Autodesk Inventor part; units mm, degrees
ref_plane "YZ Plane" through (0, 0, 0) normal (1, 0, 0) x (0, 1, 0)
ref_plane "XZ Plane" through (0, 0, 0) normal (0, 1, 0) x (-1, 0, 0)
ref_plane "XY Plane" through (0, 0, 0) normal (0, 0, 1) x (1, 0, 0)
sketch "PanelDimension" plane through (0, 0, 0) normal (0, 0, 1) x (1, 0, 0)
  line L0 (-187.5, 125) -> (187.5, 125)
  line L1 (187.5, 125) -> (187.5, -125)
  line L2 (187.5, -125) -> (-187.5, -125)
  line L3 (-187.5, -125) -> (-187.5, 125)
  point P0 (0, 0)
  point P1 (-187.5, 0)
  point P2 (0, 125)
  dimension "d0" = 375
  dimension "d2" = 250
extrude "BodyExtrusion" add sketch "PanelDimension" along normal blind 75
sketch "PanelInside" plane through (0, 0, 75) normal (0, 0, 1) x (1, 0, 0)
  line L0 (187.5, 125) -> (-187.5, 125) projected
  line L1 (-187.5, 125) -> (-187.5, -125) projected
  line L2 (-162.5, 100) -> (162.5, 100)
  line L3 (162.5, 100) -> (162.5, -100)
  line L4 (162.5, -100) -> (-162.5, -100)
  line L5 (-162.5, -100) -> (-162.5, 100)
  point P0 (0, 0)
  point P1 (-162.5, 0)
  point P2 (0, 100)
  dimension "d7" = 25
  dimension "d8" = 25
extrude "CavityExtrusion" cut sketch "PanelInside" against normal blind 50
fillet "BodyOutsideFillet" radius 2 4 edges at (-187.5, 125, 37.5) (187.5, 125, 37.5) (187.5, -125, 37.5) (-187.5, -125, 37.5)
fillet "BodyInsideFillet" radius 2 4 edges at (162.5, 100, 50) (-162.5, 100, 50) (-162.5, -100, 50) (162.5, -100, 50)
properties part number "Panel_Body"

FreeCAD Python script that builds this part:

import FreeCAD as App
import Part
import Sketcher
from FreeCAD import Vector
Q = App.Units.Quantity


def edges_at(feature, points):
    """Names of the edges that pass closest to the given points."""
    edges = feature.Shape.Edges
    near = lambda p: min(range(len(edges)), key=lambda i: edges[i].distToShape(Part.Vertex(*p))[0])
    return sorted({f"Edge{near(p) + 1}" for p in points})

doc = App.newDocument("Part")
body = doc.addObject("PartDesign::Body", "Body")

sketch1 = doc.addObject("Sketcher::SketchObject", "Sketch")
body.addObject(sketch1)
sketch1.AttachmentSupport = (doc.XY_Plane, [""])
sketch1.MapMode = "FlatFace"
sketch1.addGeometry([
    Part.LineSegment(Vector(187.5, 125, 0), Vector(-187.5, 125, 0)),
    Part.LineSegment(Vector(-187.5, 125, 0), Vector(-187.5, -125, 0)),
    Part.LineSegment(Vector(-187.5, -125, 0), Vector(187.5, -125, 0)),
    Part.LineSegment(Vector(187.5, -125, 0), Vector(187.5, 125, 0)),
], False)
sketch1.addConstraint([
    Sketcher.Constraint("Coincident", 0, 2, 1, 1),
    Sketcher.Constraint("Coincident", 1, 2, 2, 1),
    Sketcher.Constraint("Coincident", 2, 2, 3, 1),
    Sketcher.Constraint("Coincident", 3, 2, 0, 1),
    Sketcher.Constraint("Horizontal", 0),
    Sketcher.Constraint("Vertical", 1),
    Sketcher.Constraint("Horizontal", 2),
    Sketcher.Constraint("Vertical", 3),
    Sketcher.Constraint("Symmetric", 0, 2, 2, 2, -1, 1),
    Sketcher.Constraint("DistanceX", 0, 2, 0, 1, Q("375 mm")),
    Sketcher.Constraint("DistanceY", 1, 2, 1, 1, Q("250 mm")),
])
pad1 = doc.addObject("PartDesign::Pad", "Pad")
body.addObject(pad1)
pad1.Profile = sketch1
pad1.Length = 75

sketch2 = doc.addObject("Sketcher::SketchObject", "Sketch001")
body.addObject(sketch2)
sketch2.AttachmentSupport = (doc.XY_Plane, [""])
sketch2.MapMode = "FlatFace"
sketch2.AttachmentOffset = App.Placement(Vector(0, 0, 75), App.Rotation())
sketch2.addGeometry([
    Part.LineSegment(Vector(162.5, 100, 0), Vector(-162.5, 100, 0)),
    Part.LineSegment(Vector(-162.5, 100, 0), Vector(-162.5, -100, 0)),
    Part.LineSegment(Vector(-162.5, -100, 0), Vector(162.5, -100, 0)),
    Part.LineSegment(Vector(162.5, -100, 0), Vector(162.5, 100, 0)),
], False)
sketch2.addConstraint([
    Sketcher.Constraint("Coincident", 0, 2, 1, 1),
    Sketcher.Constraint("Coincident", 1, 2, 2, 1),
    Sketcher.Constraint("Coincident", 2, 2, 3, 1),
    Sketcher.Constraint("Coincident", 3, 2, 0, 1),
    Sketcher.Constraint("Horizontal", 0),
    Sketcher.Constraint("Vertical", 1),
    Sketcher.Constraint("Horizontal", 2),
    Sketcher.Constraint("Vertical", 3),
    Sketcher.Constraint("Symmetric", 0, 2, 2, 2, -1, 1),
    Sketcher.Constraint("DistanceX", 0, 2, 0, 1, Q("325 mm")),
    Sketcher.Constraint("DistanceY", 1, 2, 1, 1, Q("200 mm")),
])
pocket1 = doc.addObject("PartDesign::Pocket", "Pocket")
body.addObject(pocket1)
pocket1.Profile = sketch2
pocket1.Length = 50
doc.recompute()

fillet = doc.addObject("PartDesign::Fillet", "Fillet")
body.addObject(fillet)
fillet.Base = (pocket1, edges_at(pocket1, [
    (-187.5, 125, 37.5),
    (187.5, 125, 37.5),
    (187.5, -125, 37.5),
    (-187.5, -125, 37.5),
]))
fillet.Radius = 2
doc.recompute()

fillet2 = doc.addObject("PartDesign::Fillet", "Fillet001")
body.addObject(fillet2)
fillet2.Base = (fillet, edges_at(fillet, [
    (162.5, 100, 50),
    (-162.5, 100, 50),
    (-162.5, -100, 50),
    (162.5, -100, 50),
]))
fillet2.Radius = 2

doc.recompute()
